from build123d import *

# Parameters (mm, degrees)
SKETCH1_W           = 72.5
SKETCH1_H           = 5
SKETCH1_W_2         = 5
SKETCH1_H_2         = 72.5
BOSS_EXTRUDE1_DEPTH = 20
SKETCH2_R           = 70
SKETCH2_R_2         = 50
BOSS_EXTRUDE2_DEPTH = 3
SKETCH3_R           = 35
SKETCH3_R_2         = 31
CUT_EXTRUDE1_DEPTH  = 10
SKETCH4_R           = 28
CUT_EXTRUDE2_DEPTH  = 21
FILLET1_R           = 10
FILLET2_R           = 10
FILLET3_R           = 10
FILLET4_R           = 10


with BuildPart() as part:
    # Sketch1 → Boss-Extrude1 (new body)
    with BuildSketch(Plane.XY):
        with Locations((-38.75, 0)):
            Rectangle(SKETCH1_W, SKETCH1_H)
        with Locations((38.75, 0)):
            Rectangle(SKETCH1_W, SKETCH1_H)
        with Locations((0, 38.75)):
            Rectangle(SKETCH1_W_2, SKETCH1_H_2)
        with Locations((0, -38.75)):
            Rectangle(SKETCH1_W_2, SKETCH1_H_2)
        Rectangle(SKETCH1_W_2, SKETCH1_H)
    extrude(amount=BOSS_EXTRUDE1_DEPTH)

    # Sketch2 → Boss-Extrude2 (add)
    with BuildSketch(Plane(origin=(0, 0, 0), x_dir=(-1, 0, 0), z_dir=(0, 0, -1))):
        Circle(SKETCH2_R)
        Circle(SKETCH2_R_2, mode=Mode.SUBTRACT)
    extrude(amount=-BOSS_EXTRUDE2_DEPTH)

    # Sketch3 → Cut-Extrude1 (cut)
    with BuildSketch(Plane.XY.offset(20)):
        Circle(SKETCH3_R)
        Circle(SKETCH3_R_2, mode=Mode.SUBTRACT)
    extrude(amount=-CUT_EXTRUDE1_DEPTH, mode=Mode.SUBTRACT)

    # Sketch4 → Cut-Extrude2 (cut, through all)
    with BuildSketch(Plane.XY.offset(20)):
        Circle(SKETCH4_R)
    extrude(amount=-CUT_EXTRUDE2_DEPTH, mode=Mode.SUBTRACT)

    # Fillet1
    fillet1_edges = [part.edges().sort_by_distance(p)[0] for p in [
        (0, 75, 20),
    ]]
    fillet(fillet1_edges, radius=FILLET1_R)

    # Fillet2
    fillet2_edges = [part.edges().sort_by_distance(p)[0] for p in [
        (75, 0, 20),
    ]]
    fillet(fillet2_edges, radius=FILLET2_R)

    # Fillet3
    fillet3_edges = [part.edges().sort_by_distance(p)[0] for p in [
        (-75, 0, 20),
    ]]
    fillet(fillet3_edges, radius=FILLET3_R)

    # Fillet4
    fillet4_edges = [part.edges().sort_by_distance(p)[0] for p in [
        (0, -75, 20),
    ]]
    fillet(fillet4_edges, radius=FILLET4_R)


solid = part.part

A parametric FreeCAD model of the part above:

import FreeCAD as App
import Part
import Sketcher
Q = App.Units.Quantity


def edges_at(feature, points):
    """Names of the edges that pass closest to the given points."""
    edges = feature.Shape.Edges
    near = lambda p: min(range(len(edges)), key=lambda i: edges[i].distToShape(Part.Vertex(*p))[0])
    return sorted({f"Edge{near(p) + 1}" for p in points})


def add_polygon(sketch, points):
    """Adds a closed chain of lines whose ends are joined by coincident constraints."""
    first, n = sketch.GeometryCount, len(points)
    for a, b in zip(points, points[1:] + points[:1]):
        sketch.addGeometry(Part.LineSegment(App.Vector(*a, 0), App.Vector(*b, 0)), False)
    for i in range(n):
        sketch.addConstraint(Sketcher.Constraint("Coincident", first + i, 2, first + (i + 1) % n, 1))

doc = App.newDocument("Part")
params = doc.addObject("Spreadsheet::Sheet", "Params")
for row, (alias, value) in enumerate([
    ("sketch1_width", "5 mm"),
    ("sketch1_width2", "72.5 mm"),
    ("pad1_length", "20 mm"),
    ("sketch2_diameter", "140 mm"),
    ("sketch2_diameter2", "100 mm"),
    ("pad2_length", "3 mm"),
    ("sketch3_diameter", "70 mm"),
    ("sketch3_diameter2", "62 mm"),
    ("pocket1_length", "10 mm"),
    ("sketch4_diameter", "56 mm"),
    ("fillet_radius", "10 mm"),
    ("fillet2_radius", "10 mm"),
    ("fillet3_radius", "10 mm"),
    ("fillet4_radius", "10 mm"),
], start=1):
    params.set(f"A{row}", alias)
    params.set(f"B{row}", "=" + value)
    params.setAlias(f"B{row}", alias)

body = doc.addObject("PartDesign::Body", "Body")

sketch1 = doc.addObject("Sketcher::SketchObject", "Sketch")
body.addObject(sketch1)
sketch1.AttachmentSupport = (doc.XY_Plane, [""])
sketch1.MapMode = "FlatFace"
add_polygon(sketch1, [(-75, 2.5), (-75, -2.5), (-2.5, -2.5), (-2.5, -75), (2.5, -75), (2.5, -2.5), (75, -2.5), (75, 2.5), (2.5, 2.5), (2.5, 75), (-2.5, 75), (-2.5, 2.5)])
sketch1.addConstraint([
    Sketcher.Constraint("Vertical", 0),
    Sketcher.Constraint("Horizontal", 1),
    Sketcher.Constraint("Vertical", 2),
    Sketcher.Constraint("Horizontal", 3),
    Sketcher.Constraint("Vertical", 4),
    Sketcher.Constraint("Horizontal", 5),
    Sketcher.Constraint("Vertical", 6),
    Sketcher.Constraint("Horizontal", 7),
    Sketcher.Constraint("Vertical", 8),
    Sketcher.Constraint("Horizontal", 9),
    Sketcher.Constraint("Vertical", 10),
    Sketcher.Constraint("Horizontal", 11),
    Sketcher.Constraint("Symmetric", 0, 2, 6, 2, -1, 1),
    Sketcher.Constraint("Symmetric", 2, 2, 8, 2, -1, 1),
    Sketcher.Constraint("Symmetric", 4, 2, 10, 2, -1, 1),
    Sketcher.Constraint("Symmetric", 1, 2, 4, 2, -2),
    Sketcher.Constraint("Equal", 9, 0),
    Sketcher.Constraint("Equal", 11, 2),
    Sketcher.Constraint("DistanceX", 3, 1, 3, 2, Q("5 mm")),
    Sketcher.Constraint("DistanceX", 1, 1, 1, 2, Q("72.5 mm")),
])
sketch1.setExpression("Constraints[30]", "Params.sketch1_width")
sketch1.setExpression("Constraints[31]", "Params.sketch1_width2")
pad1 = doc.addObject("PartDesign::Pad", "Pad")
body.addObject(pad1)
pad1.Profile = sketch1
pad1.setExpression("Length", "Params.pad1_length")

sketch2 = doc.addObject("Sketcher::SketchObject", "Sketch001")
body.addObject(sketch2)
sketch2.AttachmentSupport = (doc.XY_Plane, [""])
sketch2.MapMode = "FlatFace"
sketch2.addGeometry([
    Part.Circle(App.Vector(0, 0, 0), App.Vector(0, 0, 1), 70),
    Part.Circle(App.Vector(0, 0, 0), App.Vector(0, 0, 1), 50),
], False)
sketch2.addConstraint([
    Sketcher.Constraint("Coincident", 0, 3, -1, 1),
    Sketcher.Constraint("Coincident", 1, 3, -1, 1),
    Sketcher.Constraint("Diameter", 0, Q("140 mm")),
    Sketcher.Constraint("Diameter", 1, Q("100 mm")),
])
sketch2.setExpression("Constraints[2]", "Params.sketch2_diameter")
sketch2.setExpression("Constraints[3]", "Params.sketch2_diameter2")
pad2 = doc.addObject("PartDesign::Pad", "Pad001")
body.addObject(pad2)
pad2.Profile = sketch2
pad2.setExpression("Length", "Params.pad2_length")

sketch3 = doc.addObject("Sketcher::SketchObject", "Sketch002")
body.addObject(sketch3)
sketch3.AttachmentSupport = (doc.XY_Plane, [""])
sketch3.MapMode = "FlatFace"
sketch3.AttachmentOffset = App.Placement(App.Vector(0, 0, 20), App.Rotation())
sketch3.addGeometry([
    Part.Circle(App.Vector(0, 0, 0), App.Vector(0, 0, 1), 35),
    Part.Circle(App.Vector(0, 0, 0), App.Vector(0, 0, 1), 31),
], False)
sketch3.addConstraint([
    Sketcher.Constraint("Coincident", 0, 3, -1, 1),
    Sketcher.Constraint("Coincident", 1, 3, -1, 1),
    Sketcher.Constraint("Diameter", 0, Q("70 mm")),
    Sketcher.Constraint("Diameter", 1, Q("62 mm")),
])
sketch3.setExpression("Constraints[2]", "Params.sketch3_diameter")
sketch3.setExpression("Constraints[3]", "Params.sketch3_diameter2")
pocket1 = doc.addObject("PartDesign::Pocket", "Pocket")
body.addObject(pocket1)
pocket1.Profile = sketch3
pocket1.setExpression("Length", "Params.pocket1_length")

sketch4 = doc.addObject("Sketcher::SketchObject", "Sketch003")
body.addObject(sketch4)
sketch4.AttachmentSupport = (doc.XY_Plane, [""])
sketch4.MapMode = "FlatFace"
sketch4.AttachmentOffset = App.Placement(App.Vector(0, 0, 20), App.Rotation())
sketch4.addGeometry(Part.Circle(App.Vector(0, 0, 0), App.Vector(0, 0, 1), 28), False)
sketch4.addConstraint([
    Sketcher.Constraint("Coincident", 0, 3, -1, 1),
    Sketcher.Constraint("Diameter", 0, Q("56 mm")),
])
sketch4.setExpression("Constraints[1]", "Params.sketch4_diameter")
pocket2 = doc.addObject("PartDesign::Pocket", "Pocket001")
body.addObject(pocket2)
pocket2.Profile = sketch4
pocket2.Type = "ThroughAll"
doc.recompute()

fillet = doc.addObject("PartDesign::Fillet", "Fillet")
body.addObject(fillet)
fillet.Base = (pocket2, edges_at(pocket2, [(0, 75, 20)]))
fillet.setExpression("Radius", "Params.fillet_radius")
doc.recompute()

fillet2 = doc.addObject("PartDesign::Fillet", "Fillet001")
body.addObject(fillet2)
fillet2.Base = (fillet, edges_at(fillet, [(75, 0, 20)]))
fillet2.setExpression("Radius", "Params.fillet2_radius")
doc.recompute()

fillet3 = doc.addObject("PartDesign::Fillet", "Fillet002")
body.addObject(fillet3)
fillet3.Base = (fillet2, edges_at(fillet2, [(-75, 0, 20)]))
fillet3.setExpression("Radius", "Params.fillet3_radius")
doc.recompute()

fillet4 = doc.addObject("PartDesign::Fillet", "Fillet003")
body.addObject(fillet4)
fillet4.Base = (fillet3, edges_at(fillet3, [(0, -75, 20)]))
fillet4.setExpression("Radius", "Params.fillet4_radius")

doc.recompute()
